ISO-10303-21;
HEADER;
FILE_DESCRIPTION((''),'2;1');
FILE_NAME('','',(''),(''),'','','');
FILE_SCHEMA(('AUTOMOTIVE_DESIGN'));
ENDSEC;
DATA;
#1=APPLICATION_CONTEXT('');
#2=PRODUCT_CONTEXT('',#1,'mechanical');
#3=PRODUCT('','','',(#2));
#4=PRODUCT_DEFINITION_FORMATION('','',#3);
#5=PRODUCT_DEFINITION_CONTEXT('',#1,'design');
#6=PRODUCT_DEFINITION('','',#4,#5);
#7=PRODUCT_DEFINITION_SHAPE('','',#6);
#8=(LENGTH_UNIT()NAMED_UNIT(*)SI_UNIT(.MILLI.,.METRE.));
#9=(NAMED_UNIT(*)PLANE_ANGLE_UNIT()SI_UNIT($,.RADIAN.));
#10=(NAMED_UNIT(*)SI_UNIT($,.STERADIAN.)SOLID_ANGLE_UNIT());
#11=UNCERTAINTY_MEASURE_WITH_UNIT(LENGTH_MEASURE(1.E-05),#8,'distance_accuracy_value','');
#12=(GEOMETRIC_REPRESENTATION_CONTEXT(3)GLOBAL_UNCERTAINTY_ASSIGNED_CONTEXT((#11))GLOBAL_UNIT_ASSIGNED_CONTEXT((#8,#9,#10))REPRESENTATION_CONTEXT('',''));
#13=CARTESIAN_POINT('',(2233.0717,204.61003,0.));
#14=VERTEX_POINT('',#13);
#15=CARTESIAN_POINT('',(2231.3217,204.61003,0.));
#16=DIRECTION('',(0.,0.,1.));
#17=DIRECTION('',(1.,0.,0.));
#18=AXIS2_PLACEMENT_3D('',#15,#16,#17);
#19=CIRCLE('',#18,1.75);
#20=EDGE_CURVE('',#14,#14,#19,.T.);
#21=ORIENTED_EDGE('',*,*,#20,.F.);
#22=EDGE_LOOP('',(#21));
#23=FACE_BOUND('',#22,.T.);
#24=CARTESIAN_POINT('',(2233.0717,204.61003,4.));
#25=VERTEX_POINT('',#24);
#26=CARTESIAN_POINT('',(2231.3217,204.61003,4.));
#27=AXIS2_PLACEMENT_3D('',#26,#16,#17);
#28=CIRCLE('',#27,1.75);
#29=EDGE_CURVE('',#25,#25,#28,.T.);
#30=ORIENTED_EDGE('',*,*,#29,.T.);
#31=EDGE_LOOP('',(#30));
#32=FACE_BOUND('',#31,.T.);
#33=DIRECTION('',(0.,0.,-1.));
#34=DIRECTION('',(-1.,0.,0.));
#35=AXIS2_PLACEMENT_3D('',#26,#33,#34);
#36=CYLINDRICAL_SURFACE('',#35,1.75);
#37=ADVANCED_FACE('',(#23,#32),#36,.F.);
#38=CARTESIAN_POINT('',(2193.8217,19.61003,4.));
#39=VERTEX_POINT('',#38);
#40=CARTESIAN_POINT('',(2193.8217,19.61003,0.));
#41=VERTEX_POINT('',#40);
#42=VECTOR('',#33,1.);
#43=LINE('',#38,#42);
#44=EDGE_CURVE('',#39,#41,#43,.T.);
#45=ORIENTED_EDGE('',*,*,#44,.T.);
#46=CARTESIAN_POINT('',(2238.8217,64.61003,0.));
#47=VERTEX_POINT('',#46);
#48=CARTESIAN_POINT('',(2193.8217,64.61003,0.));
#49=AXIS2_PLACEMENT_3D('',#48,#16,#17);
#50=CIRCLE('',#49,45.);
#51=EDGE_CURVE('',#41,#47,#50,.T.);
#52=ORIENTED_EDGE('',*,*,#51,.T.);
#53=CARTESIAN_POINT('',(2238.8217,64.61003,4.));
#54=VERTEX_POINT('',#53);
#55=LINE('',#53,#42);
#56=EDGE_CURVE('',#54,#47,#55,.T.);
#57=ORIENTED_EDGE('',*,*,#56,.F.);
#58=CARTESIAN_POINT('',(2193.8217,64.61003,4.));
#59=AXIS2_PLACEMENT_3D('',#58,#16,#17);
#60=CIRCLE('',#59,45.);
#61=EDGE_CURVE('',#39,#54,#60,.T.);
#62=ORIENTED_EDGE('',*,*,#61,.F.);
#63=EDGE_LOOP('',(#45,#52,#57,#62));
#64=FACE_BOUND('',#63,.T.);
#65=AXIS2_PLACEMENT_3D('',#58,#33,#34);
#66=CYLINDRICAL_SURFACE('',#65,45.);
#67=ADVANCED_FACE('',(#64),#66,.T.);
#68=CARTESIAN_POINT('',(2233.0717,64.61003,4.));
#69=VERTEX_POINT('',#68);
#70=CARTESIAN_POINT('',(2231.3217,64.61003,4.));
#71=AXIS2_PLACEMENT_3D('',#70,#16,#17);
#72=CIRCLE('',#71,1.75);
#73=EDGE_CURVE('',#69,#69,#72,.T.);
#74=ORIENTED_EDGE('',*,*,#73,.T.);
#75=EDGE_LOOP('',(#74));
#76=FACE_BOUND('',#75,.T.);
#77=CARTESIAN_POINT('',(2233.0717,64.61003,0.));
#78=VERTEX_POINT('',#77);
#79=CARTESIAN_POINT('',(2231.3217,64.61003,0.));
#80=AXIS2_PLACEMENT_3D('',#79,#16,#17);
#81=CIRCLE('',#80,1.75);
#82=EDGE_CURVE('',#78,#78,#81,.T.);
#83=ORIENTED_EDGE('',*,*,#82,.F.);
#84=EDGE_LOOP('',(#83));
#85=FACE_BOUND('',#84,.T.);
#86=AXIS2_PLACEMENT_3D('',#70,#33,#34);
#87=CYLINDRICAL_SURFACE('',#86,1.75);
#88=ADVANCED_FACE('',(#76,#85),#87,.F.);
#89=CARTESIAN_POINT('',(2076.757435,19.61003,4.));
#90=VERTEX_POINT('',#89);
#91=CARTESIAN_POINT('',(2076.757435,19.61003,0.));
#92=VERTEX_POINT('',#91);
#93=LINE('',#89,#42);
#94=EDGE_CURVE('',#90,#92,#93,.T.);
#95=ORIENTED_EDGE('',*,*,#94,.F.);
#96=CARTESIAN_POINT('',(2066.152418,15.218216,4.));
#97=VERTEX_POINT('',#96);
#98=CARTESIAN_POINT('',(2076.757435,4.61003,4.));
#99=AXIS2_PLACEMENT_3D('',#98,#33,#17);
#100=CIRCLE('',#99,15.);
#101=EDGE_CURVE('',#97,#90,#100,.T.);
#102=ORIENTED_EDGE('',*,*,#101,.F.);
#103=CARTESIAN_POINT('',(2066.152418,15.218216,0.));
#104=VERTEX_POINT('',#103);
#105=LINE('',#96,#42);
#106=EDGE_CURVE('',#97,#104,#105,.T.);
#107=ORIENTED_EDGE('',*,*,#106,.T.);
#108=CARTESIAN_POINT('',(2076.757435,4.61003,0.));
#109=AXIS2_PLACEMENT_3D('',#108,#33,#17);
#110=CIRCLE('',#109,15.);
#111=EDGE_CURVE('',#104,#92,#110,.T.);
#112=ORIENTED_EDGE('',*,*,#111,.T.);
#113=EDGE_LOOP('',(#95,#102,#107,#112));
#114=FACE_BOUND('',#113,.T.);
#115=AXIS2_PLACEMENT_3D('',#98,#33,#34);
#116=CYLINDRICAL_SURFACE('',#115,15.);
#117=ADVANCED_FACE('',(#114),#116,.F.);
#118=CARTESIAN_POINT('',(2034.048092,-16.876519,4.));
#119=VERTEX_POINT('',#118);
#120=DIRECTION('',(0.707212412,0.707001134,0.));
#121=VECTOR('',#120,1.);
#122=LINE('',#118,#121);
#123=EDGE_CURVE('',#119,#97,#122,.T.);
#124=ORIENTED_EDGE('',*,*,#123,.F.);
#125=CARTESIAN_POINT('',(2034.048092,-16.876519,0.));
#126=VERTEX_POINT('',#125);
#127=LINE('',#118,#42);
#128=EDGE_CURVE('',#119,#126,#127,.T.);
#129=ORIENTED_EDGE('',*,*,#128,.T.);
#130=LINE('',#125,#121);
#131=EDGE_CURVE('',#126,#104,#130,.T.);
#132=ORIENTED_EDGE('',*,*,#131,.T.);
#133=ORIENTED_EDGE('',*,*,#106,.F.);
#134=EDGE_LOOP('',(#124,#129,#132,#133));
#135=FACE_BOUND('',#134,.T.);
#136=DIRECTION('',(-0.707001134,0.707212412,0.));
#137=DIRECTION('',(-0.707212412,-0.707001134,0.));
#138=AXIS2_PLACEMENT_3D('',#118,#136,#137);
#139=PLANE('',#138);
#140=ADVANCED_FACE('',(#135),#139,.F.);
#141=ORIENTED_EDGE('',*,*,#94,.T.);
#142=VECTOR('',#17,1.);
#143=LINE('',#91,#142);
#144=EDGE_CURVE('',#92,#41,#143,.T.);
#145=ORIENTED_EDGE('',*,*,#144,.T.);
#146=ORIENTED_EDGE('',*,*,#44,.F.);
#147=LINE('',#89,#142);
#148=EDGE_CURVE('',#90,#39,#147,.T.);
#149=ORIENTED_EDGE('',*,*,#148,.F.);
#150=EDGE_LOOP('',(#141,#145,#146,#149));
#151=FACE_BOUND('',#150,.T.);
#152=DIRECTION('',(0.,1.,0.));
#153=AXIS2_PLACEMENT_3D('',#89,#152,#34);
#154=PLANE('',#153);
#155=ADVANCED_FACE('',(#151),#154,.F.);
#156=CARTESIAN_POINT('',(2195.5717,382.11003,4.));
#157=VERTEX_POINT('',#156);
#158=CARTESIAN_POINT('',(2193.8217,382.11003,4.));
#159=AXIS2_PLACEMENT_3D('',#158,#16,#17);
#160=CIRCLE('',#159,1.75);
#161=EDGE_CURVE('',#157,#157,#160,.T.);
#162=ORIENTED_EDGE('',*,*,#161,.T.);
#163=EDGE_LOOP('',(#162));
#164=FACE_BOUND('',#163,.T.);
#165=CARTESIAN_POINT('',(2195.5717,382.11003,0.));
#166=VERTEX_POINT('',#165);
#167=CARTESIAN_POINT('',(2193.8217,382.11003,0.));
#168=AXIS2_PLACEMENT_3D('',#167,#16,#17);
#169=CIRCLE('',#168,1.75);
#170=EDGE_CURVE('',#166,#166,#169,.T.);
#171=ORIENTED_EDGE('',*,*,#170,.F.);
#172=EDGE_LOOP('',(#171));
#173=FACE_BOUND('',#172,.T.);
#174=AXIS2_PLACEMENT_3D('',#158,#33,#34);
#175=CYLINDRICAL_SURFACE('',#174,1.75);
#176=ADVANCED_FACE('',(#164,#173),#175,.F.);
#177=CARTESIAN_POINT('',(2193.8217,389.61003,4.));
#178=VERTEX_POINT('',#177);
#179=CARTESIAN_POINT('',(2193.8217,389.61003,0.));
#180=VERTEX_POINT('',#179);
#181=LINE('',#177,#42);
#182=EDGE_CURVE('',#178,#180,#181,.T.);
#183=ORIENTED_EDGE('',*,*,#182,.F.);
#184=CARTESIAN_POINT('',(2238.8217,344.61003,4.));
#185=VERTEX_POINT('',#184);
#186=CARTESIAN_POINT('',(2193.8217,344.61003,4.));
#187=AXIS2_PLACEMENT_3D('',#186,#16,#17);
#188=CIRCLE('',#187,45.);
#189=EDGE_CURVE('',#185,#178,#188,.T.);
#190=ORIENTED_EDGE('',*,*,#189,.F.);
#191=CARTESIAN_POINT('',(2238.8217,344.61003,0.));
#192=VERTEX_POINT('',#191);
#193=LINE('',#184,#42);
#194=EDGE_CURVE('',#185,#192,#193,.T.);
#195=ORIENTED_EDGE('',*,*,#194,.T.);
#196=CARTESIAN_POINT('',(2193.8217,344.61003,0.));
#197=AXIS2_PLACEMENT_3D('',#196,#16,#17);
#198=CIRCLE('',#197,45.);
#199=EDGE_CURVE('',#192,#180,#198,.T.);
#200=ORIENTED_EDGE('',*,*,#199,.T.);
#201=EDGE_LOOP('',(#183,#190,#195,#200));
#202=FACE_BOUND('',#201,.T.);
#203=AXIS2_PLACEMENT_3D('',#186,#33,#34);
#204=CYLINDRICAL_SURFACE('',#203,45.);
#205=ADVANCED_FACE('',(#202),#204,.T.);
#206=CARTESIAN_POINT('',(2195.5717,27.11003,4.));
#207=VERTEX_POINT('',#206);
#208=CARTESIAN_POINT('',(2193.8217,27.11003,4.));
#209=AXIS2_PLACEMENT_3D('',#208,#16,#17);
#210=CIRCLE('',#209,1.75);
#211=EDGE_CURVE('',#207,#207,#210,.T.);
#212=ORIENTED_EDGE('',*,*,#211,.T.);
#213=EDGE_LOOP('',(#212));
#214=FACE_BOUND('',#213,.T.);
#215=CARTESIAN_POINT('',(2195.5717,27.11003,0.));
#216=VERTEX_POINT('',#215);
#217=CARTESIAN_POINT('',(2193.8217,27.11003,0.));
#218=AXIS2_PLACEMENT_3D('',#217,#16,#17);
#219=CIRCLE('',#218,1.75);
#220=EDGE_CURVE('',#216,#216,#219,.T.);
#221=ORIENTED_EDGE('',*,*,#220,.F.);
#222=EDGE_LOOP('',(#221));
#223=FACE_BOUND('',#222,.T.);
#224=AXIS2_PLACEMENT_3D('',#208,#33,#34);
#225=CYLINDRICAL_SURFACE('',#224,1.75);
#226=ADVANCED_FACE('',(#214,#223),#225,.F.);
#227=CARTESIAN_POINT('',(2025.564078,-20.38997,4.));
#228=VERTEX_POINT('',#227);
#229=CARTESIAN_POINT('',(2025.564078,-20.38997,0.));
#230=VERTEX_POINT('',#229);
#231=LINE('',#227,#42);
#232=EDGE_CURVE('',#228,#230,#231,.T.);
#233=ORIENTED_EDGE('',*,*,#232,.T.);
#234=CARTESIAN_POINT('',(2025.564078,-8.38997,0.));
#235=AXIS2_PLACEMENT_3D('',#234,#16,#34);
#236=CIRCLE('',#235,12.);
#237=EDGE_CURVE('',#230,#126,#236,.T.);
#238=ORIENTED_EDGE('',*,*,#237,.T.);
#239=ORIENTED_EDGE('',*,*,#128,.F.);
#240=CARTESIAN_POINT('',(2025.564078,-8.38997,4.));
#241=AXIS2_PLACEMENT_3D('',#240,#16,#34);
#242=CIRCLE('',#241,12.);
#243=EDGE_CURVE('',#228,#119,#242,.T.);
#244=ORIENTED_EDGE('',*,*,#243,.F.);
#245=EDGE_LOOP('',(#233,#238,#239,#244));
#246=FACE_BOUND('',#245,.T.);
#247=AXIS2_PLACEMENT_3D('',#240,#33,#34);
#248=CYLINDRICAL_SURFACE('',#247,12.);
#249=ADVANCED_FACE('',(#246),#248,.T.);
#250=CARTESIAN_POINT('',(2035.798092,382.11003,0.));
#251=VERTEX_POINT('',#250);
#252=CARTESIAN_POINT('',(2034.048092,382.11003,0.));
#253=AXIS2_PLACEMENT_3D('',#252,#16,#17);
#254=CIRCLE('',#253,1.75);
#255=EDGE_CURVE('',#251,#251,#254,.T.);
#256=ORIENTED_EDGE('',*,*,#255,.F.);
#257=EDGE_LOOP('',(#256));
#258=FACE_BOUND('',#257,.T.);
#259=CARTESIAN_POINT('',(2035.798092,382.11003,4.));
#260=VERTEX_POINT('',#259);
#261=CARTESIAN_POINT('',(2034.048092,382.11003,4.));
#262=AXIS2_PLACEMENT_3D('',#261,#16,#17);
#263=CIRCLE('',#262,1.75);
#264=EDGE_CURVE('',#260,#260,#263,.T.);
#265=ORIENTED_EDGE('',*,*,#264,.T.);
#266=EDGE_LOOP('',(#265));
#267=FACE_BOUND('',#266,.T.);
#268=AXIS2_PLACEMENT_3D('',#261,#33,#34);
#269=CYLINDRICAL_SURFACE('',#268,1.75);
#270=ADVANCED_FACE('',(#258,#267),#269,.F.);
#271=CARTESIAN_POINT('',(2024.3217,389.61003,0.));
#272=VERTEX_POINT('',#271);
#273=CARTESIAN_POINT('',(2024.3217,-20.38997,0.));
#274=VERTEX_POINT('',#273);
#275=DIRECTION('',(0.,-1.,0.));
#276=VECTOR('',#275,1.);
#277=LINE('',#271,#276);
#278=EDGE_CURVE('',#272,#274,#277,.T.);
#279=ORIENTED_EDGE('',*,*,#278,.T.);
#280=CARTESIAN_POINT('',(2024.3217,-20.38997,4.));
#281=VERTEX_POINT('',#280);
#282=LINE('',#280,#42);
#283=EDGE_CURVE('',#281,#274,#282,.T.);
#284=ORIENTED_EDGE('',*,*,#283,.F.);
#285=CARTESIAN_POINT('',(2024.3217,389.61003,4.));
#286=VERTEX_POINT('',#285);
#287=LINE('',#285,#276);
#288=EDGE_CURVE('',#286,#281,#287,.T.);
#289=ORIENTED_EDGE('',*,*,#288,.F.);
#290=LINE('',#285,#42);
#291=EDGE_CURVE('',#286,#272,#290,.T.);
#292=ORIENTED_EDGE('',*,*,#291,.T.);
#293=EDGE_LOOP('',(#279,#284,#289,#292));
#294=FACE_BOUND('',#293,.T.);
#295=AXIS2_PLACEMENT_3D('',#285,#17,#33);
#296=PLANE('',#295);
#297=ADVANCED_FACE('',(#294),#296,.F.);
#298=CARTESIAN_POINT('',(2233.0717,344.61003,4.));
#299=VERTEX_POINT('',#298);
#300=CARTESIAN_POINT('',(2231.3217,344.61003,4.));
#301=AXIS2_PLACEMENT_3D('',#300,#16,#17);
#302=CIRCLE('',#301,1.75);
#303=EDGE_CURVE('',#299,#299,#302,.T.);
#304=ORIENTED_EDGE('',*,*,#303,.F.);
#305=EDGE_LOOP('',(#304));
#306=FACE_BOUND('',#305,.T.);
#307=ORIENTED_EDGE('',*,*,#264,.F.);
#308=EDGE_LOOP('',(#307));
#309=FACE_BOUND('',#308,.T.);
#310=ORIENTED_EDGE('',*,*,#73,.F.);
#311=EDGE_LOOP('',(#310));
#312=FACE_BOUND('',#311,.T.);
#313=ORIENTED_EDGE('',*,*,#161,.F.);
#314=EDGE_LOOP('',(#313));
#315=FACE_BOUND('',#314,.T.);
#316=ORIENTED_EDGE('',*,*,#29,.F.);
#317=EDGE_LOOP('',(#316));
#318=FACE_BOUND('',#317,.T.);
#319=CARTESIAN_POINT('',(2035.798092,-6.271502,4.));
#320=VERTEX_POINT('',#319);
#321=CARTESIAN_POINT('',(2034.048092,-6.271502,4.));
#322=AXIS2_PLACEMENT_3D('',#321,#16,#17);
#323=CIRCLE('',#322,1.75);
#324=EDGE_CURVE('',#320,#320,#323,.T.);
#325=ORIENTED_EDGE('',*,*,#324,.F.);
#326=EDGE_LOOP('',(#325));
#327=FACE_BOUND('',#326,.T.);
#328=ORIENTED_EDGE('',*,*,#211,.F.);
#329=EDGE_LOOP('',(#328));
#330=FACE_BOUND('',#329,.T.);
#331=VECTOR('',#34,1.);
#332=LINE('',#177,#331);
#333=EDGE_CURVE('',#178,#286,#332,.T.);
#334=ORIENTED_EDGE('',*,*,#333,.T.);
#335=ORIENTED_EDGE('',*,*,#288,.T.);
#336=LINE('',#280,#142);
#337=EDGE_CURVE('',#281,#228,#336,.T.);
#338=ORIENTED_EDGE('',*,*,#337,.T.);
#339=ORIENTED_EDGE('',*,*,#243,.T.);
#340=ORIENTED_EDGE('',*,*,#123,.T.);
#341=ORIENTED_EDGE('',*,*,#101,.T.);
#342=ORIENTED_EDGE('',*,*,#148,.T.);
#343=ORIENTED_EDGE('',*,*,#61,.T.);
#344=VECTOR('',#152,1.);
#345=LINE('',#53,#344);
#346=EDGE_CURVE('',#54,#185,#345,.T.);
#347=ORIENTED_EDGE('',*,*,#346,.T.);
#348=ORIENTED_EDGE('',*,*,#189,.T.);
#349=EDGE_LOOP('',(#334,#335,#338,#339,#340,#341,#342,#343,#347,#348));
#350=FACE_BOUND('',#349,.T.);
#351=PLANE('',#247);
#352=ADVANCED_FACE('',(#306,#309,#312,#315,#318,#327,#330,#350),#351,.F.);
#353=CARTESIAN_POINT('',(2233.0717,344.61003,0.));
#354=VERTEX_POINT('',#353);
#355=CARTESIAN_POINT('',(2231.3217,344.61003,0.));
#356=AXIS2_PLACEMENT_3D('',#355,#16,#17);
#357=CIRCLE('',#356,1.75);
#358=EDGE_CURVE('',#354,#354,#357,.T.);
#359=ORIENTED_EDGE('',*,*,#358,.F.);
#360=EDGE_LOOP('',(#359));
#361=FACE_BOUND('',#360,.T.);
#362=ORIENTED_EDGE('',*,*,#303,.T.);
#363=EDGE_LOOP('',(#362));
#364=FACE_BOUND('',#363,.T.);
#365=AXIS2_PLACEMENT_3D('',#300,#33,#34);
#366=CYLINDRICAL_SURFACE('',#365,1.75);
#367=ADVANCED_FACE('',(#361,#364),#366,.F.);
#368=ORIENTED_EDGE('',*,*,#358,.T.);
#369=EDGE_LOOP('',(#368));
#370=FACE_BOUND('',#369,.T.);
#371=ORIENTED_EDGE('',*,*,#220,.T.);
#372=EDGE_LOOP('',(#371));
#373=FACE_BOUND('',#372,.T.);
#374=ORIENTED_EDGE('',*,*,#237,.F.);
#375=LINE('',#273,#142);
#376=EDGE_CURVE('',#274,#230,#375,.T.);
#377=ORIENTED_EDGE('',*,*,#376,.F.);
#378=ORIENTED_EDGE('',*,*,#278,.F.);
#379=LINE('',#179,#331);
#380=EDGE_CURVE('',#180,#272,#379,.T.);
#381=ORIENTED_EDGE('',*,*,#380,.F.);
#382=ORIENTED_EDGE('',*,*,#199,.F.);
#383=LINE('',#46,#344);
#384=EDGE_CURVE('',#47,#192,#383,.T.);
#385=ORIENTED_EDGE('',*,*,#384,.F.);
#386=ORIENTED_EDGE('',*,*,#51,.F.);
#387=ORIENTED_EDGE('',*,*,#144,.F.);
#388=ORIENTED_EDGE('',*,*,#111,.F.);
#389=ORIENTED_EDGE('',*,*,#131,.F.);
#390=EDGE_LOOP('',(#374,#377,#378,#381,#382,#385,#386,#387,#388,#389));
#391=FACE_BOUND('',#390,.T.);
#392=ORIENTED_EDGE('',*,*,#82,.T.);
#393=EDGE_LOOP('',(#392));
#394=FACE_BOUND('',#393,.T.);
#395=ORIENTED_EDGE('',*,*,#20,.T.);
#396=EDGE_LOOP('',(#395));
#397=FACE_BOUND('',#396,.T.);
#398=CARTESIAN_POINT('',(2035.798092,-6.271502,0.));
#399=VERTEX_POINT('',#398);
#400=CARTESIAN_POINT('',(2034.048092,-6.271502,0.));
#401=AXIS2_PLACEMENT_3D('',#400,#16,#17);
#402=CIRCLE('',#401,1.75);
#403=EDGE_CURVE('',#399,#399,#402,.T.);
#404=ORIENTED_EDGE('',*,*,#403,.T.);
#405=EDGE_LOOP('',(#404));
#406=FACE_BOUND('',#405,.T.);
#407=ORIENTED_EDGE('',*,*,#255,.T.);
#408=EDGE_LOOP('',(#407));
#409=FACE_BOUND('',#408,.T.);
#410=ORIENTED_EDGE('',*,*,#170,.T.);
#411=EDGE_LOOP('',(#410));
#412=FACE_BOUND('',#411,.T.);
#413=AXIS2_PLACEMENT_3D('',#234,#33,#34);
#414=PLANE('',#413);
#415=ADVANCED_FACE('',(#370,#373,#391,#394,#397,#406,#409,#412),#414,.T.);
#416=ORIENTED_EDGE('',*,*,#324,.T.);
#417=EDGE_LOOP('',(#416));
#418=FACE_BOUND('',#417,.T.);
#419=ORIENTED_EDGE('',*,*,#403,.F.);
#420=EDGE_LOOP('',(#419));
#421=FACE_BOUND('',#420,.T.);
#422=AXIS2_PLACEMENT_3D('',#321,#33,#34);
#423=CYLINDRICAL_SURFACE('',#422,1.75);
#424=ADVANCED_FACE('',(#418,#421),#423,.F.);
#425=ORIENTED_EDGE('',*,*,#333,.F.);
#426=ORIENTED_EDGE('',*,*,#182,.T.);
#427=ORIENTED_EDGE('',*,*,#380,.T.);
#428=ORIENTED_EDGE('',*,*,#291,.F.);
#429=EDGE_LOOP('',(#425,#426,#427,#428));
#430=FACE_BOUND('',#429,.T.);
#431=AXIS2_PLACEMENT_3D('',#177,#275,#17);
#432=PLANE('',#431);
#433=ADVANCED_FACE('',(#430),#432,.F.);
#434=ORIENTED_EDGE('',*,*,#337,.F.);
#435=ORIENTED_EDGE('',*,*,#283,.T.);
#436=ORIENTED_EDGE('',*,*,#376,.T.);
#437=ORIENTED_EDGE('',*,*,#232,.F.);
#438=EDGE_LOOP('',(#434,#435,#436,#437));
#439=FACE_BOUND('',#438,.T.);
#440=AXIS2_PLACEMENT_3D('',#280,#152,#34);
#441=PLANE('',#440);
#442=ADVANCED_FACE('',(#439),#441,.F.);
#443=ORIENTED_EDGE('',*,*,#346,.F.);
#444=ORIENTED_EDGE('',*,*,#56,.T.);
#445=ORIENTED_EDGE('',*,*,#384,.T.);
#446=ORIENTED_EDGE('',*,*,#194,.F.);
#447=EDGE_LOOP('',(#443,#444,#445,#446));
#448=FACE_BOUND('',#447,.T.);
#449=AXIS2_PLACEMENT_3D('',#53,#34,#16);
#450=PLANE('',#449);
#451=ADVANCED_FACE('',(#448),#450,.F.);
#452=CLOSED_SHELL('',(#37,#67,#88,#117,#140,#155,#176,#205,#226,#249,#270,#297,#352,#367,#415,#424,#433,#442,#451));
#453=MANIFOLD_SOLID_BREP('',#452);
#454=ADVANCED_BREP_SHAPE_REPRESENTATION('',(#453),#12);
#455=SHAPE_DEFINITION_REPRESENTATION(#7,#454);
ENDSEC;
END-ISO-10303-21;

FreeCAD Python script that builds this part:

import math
import FreeCAD as App
import Part
import Sketcher
Q = App.Units.Quantity

doc = App.newDocument("Part")
body = doc.addObject("PartDesign::Body", "Body")

sketch1 = body.newObject("Sketcher::SketchObject", "Sketch")
sketch1.AttachmentSupport = (doc.getObject("XY_Plane"), [""])
sketch1.MapMode = "FlatFace"
sketch1.addGeometry([
    Part.LineSegment(App.Vector(2024.3217, -20.38997, 0), App.Vector(2025.564078, -20.38997, 0)),
    Part.ArcOfCircle(Part.Circle(App.Vector(2025.564078, -8.38997, 0), App.Vector(0, 0, 1), 12), math.radians(-90), math.radians(-45.00856)),
    Part.LineSegment(App.Vector(2034.048092, -16.876519, 0), App.Vector(2066.152418, 15.218216, 0)),
    Part.ArcOfCircle(Part.Circle(App.Vector(2076.757435, 4.61003, 0), App.Vector(0, 0, 1), 15), math.radians(90), math.radians(134.99144)),
    Part.LineSegment(App.Vector(2076.757435, 19.61003, 0), App.Vector(2193.8217, 19.61003, 0)),
    Part.ArcOfCircle(Part.Circle(App.Vector(2193.8217, 64.61003, 0), App.Vector(0, 0, 1), 45), math.radians(-90), math.radians(0)),
    Part.LineSegment(App.Vector(2238.8217, 64.61003, 0), App.Vector(2238.8217, 344.61003, 0)),
    Part.ArcOfCircle(Part.Circle(App.Vector(2193.8217, 344.61003, 0), App.Vector(0, 0, 1), 45), math.radians(0), math.radians(90)),
    Part.LineSegment(App.Vector(2193.8217, 389.61003, 0), App.Vector(2024.3217, 389.61003, 0)),
    Part.LineSegment(App.Vector(2024.3217, 389.61003, 0), App.Vector(2024.3217, -20.38997, 0)),
    Part.Circle(App.Vector(2034.048092, -6.271502, 0), App.Vector(0, 0, 1), 1.75),
    Part.Circle(App.Vector(2193.8217, 27.11003, 0), App.Vector(0, 0, 1), 1.75),
    Part.Circle(App.Vector(2231.3217, 64.61003, 0), App.Vector(0, 0, 1), 1.75),
    Part.Circle(App.Vector(2034.048092, 382.11003, 0), App.Vector(0, 0, 1), 1.75),
    Part.Circle(App.Vector(2231.3217, 204.61003, 0), App.Vector(0, 0, 1), 1.75),
    Part.Circle(App.Vector(2193.8217, 382.11003, 0), App.Vector(0, 0, 1), 1.75),
    Part.Circle(App.Vector(2231.3217, 344.61003, 0), App.Vector(0, 0, 1), 1.75),
], False)
sketch1.addConstraint([
    Sketcher.Constraint("Tangent", 0, 2, 1, 1),
    Sketcher.Constraint("Tangent", 1, 2, 2, 1),
    Sketcher.Constraint("Tangent", 2, 2, 3, 2),
    Sketcher.Constraint("Tangent", 3, 1, 4, 1),
    Sketcher.Constraint("Tangent", 4, 2, 5, 1),
    Sketcher.Constraint("Tangent", 5, 2, 6, 1),
    Sketcher.Constraint("Tangent", 6, 2, 7, 1),
    Sketcher.Constraint("Tangent", 7, 2, 8, 1),
    Sketcher.Constraint("Coincident", 8, 2, 9, 1),
    Sketcher.Constraint("Coincident", 9, 2, 0, 1),
    Sketcher.Constraint("Horizontal", 0),
    Sketcher.Constraint("Horizontal", 4),
    Sketcher.Constraint("Vertical", 6),
    Sketcher.Constraint("Horizontal", 8),
    Sketcher.Constraint("Vertical", 9),
    Sketcher.Constraint("Equal", 5, 7),
    Sketcher.Constraint("Equal", 10, 11),
    Sketcher.Constraint("Equal", 11, 12),
    Sketcher.Constraint("Equal", 12, 13),
    Sketcher.Constraint("Equal", 13, 14),
    Sketcher.Constraint("Equal", 14, 15),
    Sketcher.Constraint("Equal", 15, 16),
    Sketcher.Constraint("Horizontal", 5, 3, 12, 3),
    Sketcher.Constraint("Horizontal", 13, 3, 15, 3),
    Sketcher.Constraint("Horizontal", 7, 3, 16, 3),
    Sketcher.Constraint("Vertical", 7, 3, 11, 3),
    Sketcher.Constraint("Vertical", 10, 3, 13, 3),
    Sketcher.Constraint("Vertical", 12, 3, 14, 3),
    Sketcher.Constraint("Vertical", 11, 3, 15, 3),
    Sketcher.Constraint("Vertical", 14, 3, 16, 3),
    Sketcher.Constraint("Vertical", 13, 3, 1, 2),
    Sketcher.Constraint("Radius", 1, Q("12 mm")),
    Sketcher.Constraint("Radius", 3, Q("15 mm")),
    Sketcher.Constraint("Radius", 5, Q("45 mm")),
    Sketcher.Constraint("Diameter", 10, Q("3.5 mm")),
    Sketcher.Constraint("DistanceY", 6, 1, 6, 2, Q("280 mm")),
    Sketcher.Constraint("DistanceY", 9, 2, 9, 1, Q("410 mm")),
    Sketcher.Constraint("DistanceX", 8, 2, 8, 1, Q("169.5 mm")),
    Sketcher.Constraint("DistanceY", 12, 3, 14, 3, Q("140 mm")),
    Sketcher.Constraint("DistanceX", 8, 2, 16, 3, Q("207 mm")),
    Sketcher.Constraint("DistanceY", 11, 3, 5, 3, Q("37.5 mm")),
    Sketcher.Constraint("DistanceY", 7, 3, 13, 3, Q("37.5 mm")),
    Sketcher.Constraint("DistanceX", 0, 1, 0, 2, Q("1.242378 mm")),
    Sketcher.Constraint("DistanceX", -1, 1, 5, 3, Q("2193.8217 mm")),
    Sketcher.Constraint("DistanceY", 10, 3, -1, 1, Q("6.271502 mm")),
    Sketcher.Constraint("DistanceX", 4, 1, 4, 2, Q("117.064265 mm")),
    Sketcher.Constraint("DistanceY", 1, 3, -1, 1, Q("8.38997 mm")),
])
pad1 = body.newObject("PartDesign::Pad", "Pad")
pad1.Profile = sketch1
pad1.Length = 4

doc.recompute()
